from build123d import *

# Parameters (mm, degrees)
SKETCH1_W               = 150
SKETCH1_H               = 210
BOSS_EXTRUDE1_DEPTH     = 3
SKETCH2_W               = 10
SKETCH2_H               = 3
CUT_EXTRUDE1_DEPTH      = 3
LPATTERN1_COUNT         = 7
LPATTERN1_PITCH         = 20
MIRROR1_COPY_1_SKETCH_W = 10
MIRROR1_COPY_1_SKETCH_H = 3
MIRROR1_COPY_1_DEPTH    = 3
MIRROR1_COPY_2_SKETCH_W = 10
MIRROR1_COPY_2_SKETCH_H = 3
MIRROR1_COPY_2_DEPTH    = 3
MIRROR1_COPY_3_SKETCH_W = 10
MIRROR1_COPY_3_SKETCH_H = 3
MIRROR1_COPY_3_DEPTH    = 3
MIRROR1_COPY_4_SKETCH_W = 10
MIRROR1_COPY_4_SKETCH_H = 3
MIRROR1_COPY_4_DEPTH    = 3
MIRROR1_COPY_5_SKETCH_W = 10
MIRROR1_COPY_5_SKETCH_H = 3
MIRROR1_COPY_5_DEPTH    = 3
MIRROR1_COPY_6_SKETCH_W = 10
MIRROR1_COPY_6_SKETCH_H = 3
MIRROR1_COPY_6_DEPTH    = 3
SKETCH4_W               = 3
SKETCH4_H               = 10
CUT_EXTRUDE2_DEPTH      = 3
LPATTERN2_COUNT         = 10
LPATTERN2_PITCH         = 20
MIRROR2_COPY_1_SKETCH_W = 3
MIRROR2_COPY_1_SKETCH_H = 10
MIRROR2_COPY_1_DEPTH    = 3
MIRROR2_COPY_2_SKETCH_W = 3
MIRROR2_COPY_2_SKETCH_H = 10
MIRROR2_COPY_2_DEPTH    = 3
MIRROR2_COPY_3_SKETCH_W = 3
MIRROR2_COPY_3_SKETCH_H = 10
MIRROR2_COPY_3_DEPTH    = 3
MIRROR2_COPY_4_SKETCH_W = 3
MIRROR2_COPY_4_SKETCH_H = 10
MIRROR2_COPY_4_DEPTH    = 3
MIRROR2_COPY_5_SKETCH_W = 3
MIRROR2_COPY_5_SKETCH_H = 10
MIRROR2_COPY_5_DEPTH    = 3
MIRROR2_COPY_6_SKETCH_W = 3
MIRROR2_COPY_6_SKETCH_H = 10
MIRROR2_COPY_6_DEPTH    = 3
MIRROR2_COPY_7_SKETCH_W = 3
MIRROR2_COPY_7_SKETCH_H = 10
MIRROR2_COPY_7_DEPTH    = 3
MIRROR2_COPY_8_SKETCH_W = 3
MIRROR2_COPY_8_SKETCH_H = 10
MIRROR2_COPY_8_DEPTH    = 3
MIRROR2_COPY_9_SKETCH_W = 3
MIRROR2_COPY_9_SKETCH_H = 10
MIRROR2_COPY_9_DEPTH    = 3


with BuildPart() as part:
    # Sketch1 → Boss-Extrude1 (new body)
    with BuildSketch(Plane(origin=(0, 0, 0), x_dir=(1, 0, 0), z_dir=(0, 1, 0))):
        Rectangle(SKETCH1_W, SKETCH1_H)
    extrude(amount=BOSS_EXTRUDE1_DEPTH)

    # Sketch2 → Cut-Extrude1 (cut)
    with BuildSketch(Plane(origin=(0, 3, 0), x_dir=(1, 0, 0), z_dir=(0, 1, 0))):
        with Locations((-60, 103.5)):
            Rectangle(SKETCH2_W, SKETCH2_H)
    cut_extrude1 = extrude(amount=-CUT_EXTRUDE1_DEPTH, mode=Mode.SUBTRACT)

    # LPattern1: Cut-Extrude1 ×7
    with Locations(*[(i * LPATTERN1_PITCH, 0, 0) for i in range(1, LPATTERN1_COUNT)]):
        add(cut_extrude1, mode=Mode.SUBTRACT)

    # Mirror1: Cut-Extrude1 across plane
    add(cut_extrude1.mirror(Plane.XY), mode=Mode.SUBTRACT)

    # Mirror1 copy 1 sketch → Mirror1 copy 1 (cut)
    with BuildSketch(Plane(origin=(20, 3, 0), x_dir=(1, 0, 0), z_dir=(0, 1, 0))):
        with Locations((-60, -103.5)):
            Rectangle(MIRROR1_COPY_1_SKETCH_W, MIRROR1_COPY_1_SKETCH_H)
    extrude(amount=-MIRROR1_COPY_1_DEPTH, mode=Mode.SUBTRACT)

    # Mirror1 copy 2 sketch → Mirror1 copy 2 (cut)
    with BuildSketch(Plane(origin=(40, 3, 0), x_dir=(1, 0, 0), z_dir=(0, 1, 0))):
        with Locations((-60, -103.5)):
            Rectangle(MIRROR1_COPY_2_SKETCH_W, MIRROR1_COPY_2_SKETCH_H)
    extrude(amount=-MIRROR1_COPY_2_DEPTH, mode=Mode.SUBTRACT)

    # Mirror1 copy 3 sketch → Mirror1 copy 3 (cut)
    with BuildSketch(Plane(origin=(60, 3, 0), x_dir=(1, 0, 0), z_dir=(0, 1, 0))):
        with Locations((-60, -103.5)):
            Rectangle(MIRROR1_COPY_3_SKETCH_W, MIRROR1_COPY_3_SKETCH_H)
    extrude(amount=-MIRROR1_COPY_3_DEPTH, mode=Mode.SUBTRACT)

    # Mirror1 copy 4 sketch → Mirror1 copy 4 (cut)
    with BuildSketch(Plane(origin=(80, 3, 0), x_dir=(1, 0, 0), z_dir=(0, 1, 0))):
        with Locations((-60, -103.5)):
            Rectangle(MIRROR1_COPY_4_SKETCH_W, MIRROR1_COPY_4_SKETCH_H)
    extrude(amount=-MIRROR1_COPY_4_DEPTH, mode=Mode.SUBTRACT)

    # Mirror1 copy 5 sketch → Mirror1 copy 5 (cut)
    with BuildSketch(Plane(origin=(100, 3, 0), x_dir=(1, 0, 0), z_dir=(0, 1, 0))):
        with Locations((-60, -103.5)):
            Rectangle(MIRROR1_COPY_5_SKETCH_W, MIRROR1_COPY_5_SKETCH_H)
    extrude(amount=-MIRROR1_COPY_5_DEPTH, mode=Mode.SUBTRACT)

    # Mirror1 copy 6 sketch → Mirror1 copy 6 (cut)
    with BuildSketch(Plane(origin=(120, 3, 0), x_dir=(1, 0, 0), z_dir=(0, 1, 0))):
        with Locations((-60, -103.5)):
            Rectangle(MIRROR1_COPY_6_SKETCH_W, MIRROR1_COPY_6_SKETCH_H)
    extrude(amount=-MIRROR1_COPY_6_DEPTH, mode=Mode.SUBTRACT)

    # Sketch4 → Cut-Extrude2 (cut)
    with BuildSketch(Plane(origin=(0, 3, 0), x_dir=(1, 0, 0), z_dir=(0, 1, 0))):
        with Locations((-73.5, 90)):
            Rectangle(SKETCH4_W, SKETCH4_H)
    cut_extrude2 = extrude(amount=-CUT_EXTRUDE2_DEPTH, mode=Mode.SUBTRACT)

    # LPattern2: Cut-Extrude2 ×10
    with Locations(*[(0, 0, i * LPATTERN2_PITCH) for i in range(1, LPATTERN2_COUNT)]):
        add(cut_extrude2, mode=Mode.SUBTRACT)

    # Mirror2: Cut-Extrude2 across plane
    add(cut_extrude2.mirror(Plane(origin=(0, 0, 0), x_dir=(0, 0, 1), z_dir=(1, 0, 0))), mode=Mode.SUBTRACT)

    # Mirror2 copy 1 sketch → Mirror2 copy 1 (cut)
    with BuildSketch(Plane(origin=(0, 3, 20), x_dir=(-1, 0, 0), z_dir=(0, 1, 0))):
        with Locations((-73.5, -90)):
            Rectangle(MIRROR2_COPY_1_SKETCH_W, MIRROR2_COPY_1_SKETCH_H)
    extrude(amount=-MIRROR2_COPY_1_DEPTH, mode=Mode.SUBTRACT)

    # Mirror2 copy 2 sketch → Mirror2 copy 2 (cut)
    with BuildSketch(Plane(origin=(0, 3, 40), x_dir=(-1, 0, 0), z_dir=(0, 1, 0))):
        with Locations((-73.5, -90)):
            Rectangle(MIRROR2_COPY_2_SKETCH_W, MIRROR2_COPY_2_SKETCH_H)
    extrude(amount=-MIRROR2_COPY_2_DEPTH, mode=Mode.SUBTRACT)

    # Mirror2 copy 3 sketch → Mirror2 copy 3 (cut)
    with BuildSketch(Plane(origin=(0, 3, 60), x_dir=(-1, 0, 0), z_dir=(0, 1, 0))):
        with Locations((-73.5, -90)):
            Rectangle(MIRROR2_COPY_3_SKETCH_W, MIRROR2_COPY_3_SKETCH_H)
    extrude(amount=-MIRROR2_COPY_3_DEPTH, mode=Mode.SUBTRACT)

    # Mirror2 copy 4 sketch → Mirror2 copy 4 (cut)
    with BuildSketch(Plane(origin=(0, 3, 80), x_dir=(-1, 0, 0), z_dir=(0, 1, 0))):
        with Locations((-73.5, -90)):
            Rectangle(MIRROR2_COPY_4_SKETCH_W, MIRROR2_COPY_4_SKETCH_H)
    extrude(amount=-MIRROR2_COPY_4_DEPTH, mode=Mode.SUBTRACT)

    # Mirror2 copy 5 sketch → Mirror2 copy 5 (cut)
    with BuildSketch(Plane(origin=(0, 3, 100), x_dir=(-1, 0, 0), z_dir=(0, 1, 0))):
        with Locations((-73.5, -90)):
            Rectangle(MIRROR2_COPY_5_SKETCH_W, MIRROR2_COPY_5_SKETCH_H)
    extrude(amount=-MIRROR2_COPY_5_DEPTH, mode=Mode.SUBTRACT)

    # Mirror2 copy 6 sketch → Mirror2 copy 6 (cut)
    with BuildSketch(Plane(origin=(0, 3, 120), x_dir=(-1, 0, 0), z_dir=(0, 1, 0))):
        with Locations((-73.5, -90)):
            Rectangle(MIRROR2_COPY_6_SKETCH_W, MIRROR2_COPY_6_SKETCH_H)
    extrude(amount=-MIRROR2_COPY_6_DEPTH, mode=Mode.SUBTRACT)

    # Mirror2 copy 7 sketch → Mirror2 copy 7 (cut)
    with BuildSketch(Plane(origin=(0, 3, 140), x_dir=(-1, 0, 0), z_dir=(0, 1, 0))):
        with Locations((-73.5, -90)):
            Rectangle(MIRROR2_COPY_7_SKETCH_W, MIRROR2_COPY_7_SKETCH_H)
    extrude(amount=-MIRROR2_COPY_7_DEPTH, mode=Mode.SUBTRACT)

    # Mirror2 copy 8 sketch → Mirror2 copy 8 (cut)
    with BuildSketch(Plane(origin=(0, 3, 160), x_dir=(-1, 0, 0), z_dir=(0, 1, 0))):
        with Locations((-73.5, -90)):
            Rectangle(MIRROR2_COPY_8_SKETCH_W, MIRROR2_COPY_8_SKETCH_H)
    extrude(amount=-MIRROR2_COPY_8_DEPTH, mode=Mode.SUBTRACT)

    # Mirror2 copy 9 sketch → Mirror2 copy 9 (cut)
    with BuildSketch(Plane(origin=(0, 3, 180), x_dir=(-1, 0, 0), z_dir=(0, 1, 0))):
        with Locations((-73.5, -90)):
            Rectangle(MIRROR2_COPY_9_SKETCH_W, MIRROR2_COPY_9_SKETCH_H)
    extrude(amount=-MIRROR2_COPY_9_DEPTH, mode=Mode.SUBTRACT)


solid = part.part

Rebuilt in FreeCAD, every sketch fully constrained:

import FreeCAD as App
import Part
import Sketcher
from FreeCAD import Vector
Q = App.Units.Quantity


def add_polygon(sketch, points):
    """Adds a closed chain of lines whose ends are joined by coincident constraints."""
    first, n = sketch.GeometryCount, len(points)
    for a, b in zip(points, points[1:] + points[:1]):
        sketch.addGeometry(Part.LineSegment(App.Vector(*a, 0), App.Vector(*b, 0)), False)
    for i in range(n):
        sketch.addConstraint(Sketcher.Constraint("Coincident", first + i, 2, first + (i + 1) % n, 1))

doc = App.newDocument("Part")
body = doc.addObject("PartDesign::Body", "Body")

# Sketch on XZ plane
sketch1 = body.newObject("Sketcher::SketchObject", "Sketch")
sketch1.AttachmentSupport = (doc.getObject("XZ_Plane"), [""])
sketch1.MapMode = "FlatFace"
add_polygon(sketch1, [(-75, -105), (-75, 105), (75, 105), (75, -105)])  # lines 0-3
sketch1.addConstraint([
    Sketcher.Constraint("Vertical", 0),
    Sketcher.Constraint("Horizontal", 1),
    Sketcher.Constraint("Vertical", 2),
    Sketcher.Constraint("Horizontal", 3),
    Sketcher.Constraint("Symmetric", 0, 2, 2, 2, -1, 1),
    Sketcher.Constraint("DistanceX", 1, 1, 1, 2, Q("150 mm")),
    Sketcher.Constraint("DistanceY", 0, 1, 0, 2, Q("210 mm")),
])
pad1 = body.newObject("PartDesign::Pad", "Pad")
pad1.Profile = sketch1
pad1.Length = 3
pad1.Reversed = True

# Sketch on XZ plane
sketch2 = body.newObject("Sketcher::SketchObject", "Sketch001")
sketch2.AttachmentSupport = (doc.getObject("XZ_Plane"), [""])
sketch2.MapMode = "FlatFace"
sketch2.AttachmentOffset = App.Placement(Vector(0, 0, -3), App.Rotation())
add_polygon(sketch2, [(-65, -105), (-65, -102), (-55, -102), (-55, -105)])  # lines 0-3
sketch2.addConstraint([
    Sketcher.Constraint("Vertical", 0),
    Sketcher.Constraint("Horizontal", 1),
    Sketcher.Constraint("Vertical", 2),
    Sketcher.Constraint("Horizontal", 3),
    Sketcher.Constraint("DistanceX", 1, 1, 1, 2, Q("10 mm")),
    Sketcher.Constraint("DistanceY", 0, 1, 0, 2, Q("3 mm")),
    Sketcher.Constraint("DistanceX", 0, 2, -1, 1, Q("65 mm")),
    Sketcher.Constraint("DistanceY", 0, 2, -1, 1, Q("102 mm")),
])
pocket1 = body.newObject("PartDesign::Pocket", "Pocket")
pocket1.Profile = sketch2
pocket1.Length = 3
pocket1.Reversed = True
doc.recompute()

linearpattern = body.newObject("PartDesign::LinearPattern", "LinearPattern")
linearpattern.Originals = [pocket1]
linearpattern.Direction = (doc.getObject("X_Axis"), [""])
linearpattern.Mode = "offset"
linearpattern.Offset = 20
linearpattern.Occurrences = 7
body.Tip = linearpattern
doc.recompute()

mirrored = body.newObject("PartDesign::Mirrored", "Mirrored")
mirrored.Originals = [pocket1]
mirrored.MirrorPlane = (doc.getObject("XY_Plane"), [""])
body.Tip = mirrored

# Sketch on XZ plane
sketch3 = body.newObject("Sketcher::SketchObject", "Sketch002")
sketch3.AttachmentSupport = (doc.getObject("XZ_Plane"), [""])
sketch3.MapMode = "FlatFace"
sketch3.AttachmentOffset = App.Placement(Vector(0, 0, -3), App.Rotation())
add_polygon(sketch3, [(-45, 102), (-45, 105), (-35, 105), (-35, 102)])  # lines 0-3
sketch3.addConstraint([
    Sketcher.Constraint("Vertical", 0),
    Sketcher.Constraint("Horizontal", 1),
    Sketcher.Constraint("Vertical", 2),
    Sketcher.Constraint("Horizontal", 3),
    Sketcher.Constraint("DistanceX", 1, 1, 1, 2, Q("10 mm")),
    Sketcher.Constraint("DistanceY", 0, 1, 0, 2, Q("3 mm")),
    Sketcher.Constraint("DistanceX", 0, 2, -1, 1, Q("45 mm")),
    Sketcher.Constraint("DistanceY", -1, 1, 0, 2, Q("105 mm")),
])
pocket2 = body.newObject("PartDesign::Pocket", "Pocket001")
pocket2.Profile = sketch3
pocket2.Length = 3
pocket2.Reversed = True

# Sketch on XZ plane
sketch4 = body.newObject("Sketcher::SketchObject", "Sketch003")
sketch4.AttachmentSupport = (doc.getObject("XZ_Plane"), [""])
sketch4.MapMode = "FlatFace"
sketch4.AttachmentOffset = App.Placement(Vector(0, 0, -3), App.Rotation())
add_polygon(sketch4, [(-25, 102), (-25, 105), (-15, 105), (-15, 102)])  # lines 0-3
sketch4.addConstraint([
    Sketcher.Constraint("Vertical", 0),
    Sketcher.Constraint("Horizontal", 1),
    Sketcher.Constraint("Vertical", 2),
    Sketcher.Constraint("Horizontal", 3),
    Sketcher.Constraint("DistanceX", 1, 1, 1, 2, Q("10 mm")),
    Sketcher.Constraint("DistanceY", 0, 1, 0, 2, Q("3 mm")),
    Sketcher.Constraint("DistanceX", 0, 2, -1, 1, Q("25 mm")),
    Sketcher.Constraint("DistanceY", -1, 1, 0, 2, Q("105 mm")),
])
pocket3 = body.newObject("PartDesign::Pocket", "Pocket002")
pocket3.Profile = sketch4
pocket3.Length = 3
pocket3.Reversed = True

# Sketch on XZ plane
sketch5 = body.newObject("Sketcher::SketchObject", "Sketch004")
sketch5.AttachmentSupport = (doc.getObject("XZ_Plane"), [""])
sketch5.MapMode = "FlatFace"
sketch5.AttachmentOffset = App.Placement(Vector(0, 0, -3), App.Rotation())
add_polygon(sketch5, [(-5, 102), (-5, 105), (5, 105), (5, 102)])  # lines 0-3
sketch5.addConstraint([
    Sketcher.Constraint("Vertical", 0),
    Sketcher.Constraint("Horizontal", 1),
    Sketcher.Constraint("Vertical", 2),
    Sketcher.Constraint("Horizontal", 3),
    Sketcher.Constraint("DistanceX", 1, 1, 1, 2, Q("10 mm")),
    Sketcher.Constraint("DistanceY", 0, 1, 0, 2, Q("3 mm")),
    Sketcher.Constraint("DistanceX", 0, 2, -1, 1, Q("5 mm")),
    Sketcher.Constraint("DistanceY", -1, 1, 0, 2, Q("105 mm")),
])
pocket4 = body.newObject("PartDesign::Pocket", "Pocket003")
pocket4.Profile = sketch5
pocket4.Length = 3
pocket4.Reversed = True

# Sketch on XZ plane
sketch6 = body.newObject("Sketcher::SketchObject", "Sketch005")
sketch6.AttachmentSupport = (doc.getObject("XZ_Plane"), [""])
sketch6.MapMode = "FlatFace"
sketch6.AttachmentOffset = App.Placement(Vector(0, 0, -3), App.Rotation())
add_polygon(sketch6, [(15, 102), (15, 105), (25, 105), (25, 102)])  # lines 0-3
sketch6.addConstraint([
    Sketcher.Constraint("Vertical", 0),
    Sketcher.Constraint("Horizontal", 1),
    Sketcher.Constraint("Vertical", 2),
    Sketcher.Constraint("Horizontal", 3),
    Sketcher.Constraint("DistanceX", 1, 1, 1, 2, Q("10 mm")),
    Sketcher.Constraint("DistanceY", 0, 1, 0, 2, Q("3 mm")),
    Sketcher.Constraint("DistanceX", -1, 1, 0, 2, Q("15 mm")),
    Sketcher.Constraint("DistanceY", -1, 1, 0, 2, Q("105 mm")),
])
pocket5 = body.newObject("PartDesign::Pocket", "Pocket004")
pocket5.Profile = sketch6
pocket5.Length = 3
pocket5.Reversed = True

# Sketch on XZ plane
sketch7 = body.newObject("Sketcher::SketchObject", "Sketch006")
sketch7.AttachmentSupport = (doc.getObject("XZ_Plane"), [""])
sketch7.MapMode = "FlatFace"
sketch7.AttachmentOffset = App.Placement(Vector(0, 0, -3), App.Rotation())
add_polygon(sketch7, [(35, 102), (35, 105), (45, 105), (45, 102)])  # lines 0-3
sketch7.addConstraint([
    Sketcher.Constraint("Vertical", 0),
    Sketcher.Constraint("Horizontal", 1),
    Sketcher.Constraint("Vertical", 2),
    Sketcher.Constraint("Horizontal", 3),
    Sketcher.Constraint("DistanceX", 1, 1, 1, 2, Q("10 mm")),
    Sketcher.Constraint("DistanceY", 0, 1, 0, 2, Q("3 mm")),
    Sketcher.Constraint("DistanceX", -1, 1, 0, 2, Q("35 mm")),
    Sketcher.Constraint("DistanceY", -1, 1, 0, 2, Q("105 mm")),
])
pocket6 = body.newObject("PartDesign::Pocket", "Pocket005")
pocket6.Profile = sketch7
pocket6.Length = 3
pocket6.Reversed = True

# Sketch on XZ plane
sketch8 = body.newObject("Sketcher::SketchObject", "Sketch007")
sketch8.AttachmentSupport = (doc.getObject("XZ_Plane"), [""])
sketch8.MapMode = "FlatFace"
sketch8.AttachmentOffset = App.Placement(Vector(0, 0, -3), App.Rotation())
add_polygon(sketch8, [(55, 102), (55, 105), (65, 105), (65, 102)])  # lines 0-3
sketch8.addConstraint([
    Sketcher.Constraint("Vertical", 0),
    Sketcher.Constraint("Horizontal", 1),
    Sketcher.Constraint("Vertical", 2),
    Sketcher.Constraint("Horizontal", 3),
    Sketcher.Constraint("DistanceX", 1, 1, 1, 2, Q("10 mm")),
    Sketcher.Constraint("DistanceY", 0, 1, 0, 2, Q("3 mm")),
    Sketcher.Constraint("DistanceX", -1, 1, 0, 2, Q("55 mm")),
    Sketcher.Constraint("DistanceY", -1, 1, 0, 2, Q("105 mm")),
])
pocket7 = body.newObject("PartDesign::Pocket", "Pocket006")
pocket7.Profile = sketch8
pocket7.Length = 3
pocket7.Reversed = True

# Sketch on XZ plane
sketch9 = body.newObject("Sketcher::SketchObject", "Sketch008")
sketch9.AttachmentSupport = (doc.getObject("XZ_Plane"), [""])
sketch9.MapMode = "FlatFace"
sketch9.AttachmentOffset = App.Placement(Vector(0, 0, -3), App.Rotation())
add_polygon(sketch9, [(-75, -95), (-75, -85), (-72, -85), (-72, -95)])  # lines 0-3
sketch9.addConstraint([
    Sketcher.Constraint("Vertical", 0),
    Sketcher.Constraint("Horizontal", 1),
    Sketcher.Constraint("Vertical", 2),
    Sketcher.Constraint("Horizontal", 3),
    Sketcher.Constraint("DistanceX", 1, 1, 1, 2, Q("3 mm")),
    Sketcher.Constraint("DistanceY", 0, 1, 0, 2, Q("10 mm")),
    Sketcher.Constraint("DistanceX", 0, 2, -1, 1, Q("75 mm")),
    Sketcher.Constraint("DistanceY", 0, 2, -1, 1, Q("85 mm")),
])
pocket8 = body.newObject("PartDesign::Pocket", "Pocket007")
pocket8.Profile = sketch9
pocket8.Length = 3
pocket8.Reversed = True
doc.recompute()

linearpattern2 = body.newObject("PartDesign::LinearPattern", "LinearPattern001")
linearpattern2.Originals = [pocket8]
linearpattern2.Direction = (doc.getObject("Z_Axis"), [""])
linearpattern2.Mode = "offset"
linearpattern2.Offset = 20
linearpattern2.Occurrences = 10
body.Tip = linearpattern2
doc.recompute()

mirrored2 = body.newObject("PartDesign::Mirrored", "Mirrored001")
mirrored2.Originals = [pocket8]
mirrored2.MirrorPlane = (doc.getObject("YZ_Plane"), [""])
body.Tip = mirrored2

# Sketch on XZ plane
sketch10 = body.newObject("Sketcher::SketchObject", "Sketch009")
sketch10.AttachmentSupport = (doc.getObject("XZ_Plane"), [""])
sketch10.MapMode = "FlatFace"
sketch10.AttachmentOffset = App.Placement(Vector(0, 0, -3), App.Rotation())
add_polygon(sketch10, [(75, -65), (75, -75), (72, -75), (72, -65)])  # lines 0-3
sketch10.addConstraint([
    Sketcher.Constraint("Vertical", 0),
    Sketcher.Constraint("Horizontal", 1),
    Sketcher.Constraint("Vertical", 2),
    Sketcher.Constraint("Horizontal", 3),
    Sketcher.Constraint("DistanceX", 1, 2, 1, 1, Q("3 mm")),
    Sketcher.Constraint("DistanceY", 0, 2, 0, 1, Q("10 mm")),
    Sketcher.Constraint("DistanceX", -1, 1, 0, 2, Q("75 mm")),
    Sketcher.Constraint("DistanceY", 0, 2, -1, 1, Q("75 mm")),
])
pocket9 = body.newObject("PartDesign::Pocket", "Pocket008")
pocket9.Profile = sketch10
pocket9.Length = 3
pocket9.Reversed = True

# Sketch on XZ plane
sketch11 = body.newObject("Sketcher::SketchObject", "Sketch010")
sketch11.AttachmentSupport = (doc.getObject("XZ_Plane"), [""])
sketch11.MapMode = "FlatFace"
sketch11.AttachmentOffset = App.Placement(Vector(0, 0, -3), App.Rotation())
add_polygon(sketch11, [(75, -45), (75, -55), (72, -55), (72, -45)])  # lines 0-3
sketch11.addConstraint([
    Sketcher.Constraint("Vertical", 0),
    Sketcher.Constraint("Horizontal", 1),
    Sketcher.Constraint("Vertical", 2),
    Sketcher.Constraint("Horizontal", 3),
    Sketcher.Constraint("DistanceX", 1, 2, 1, 1, Q("3 mm")),
    Sketcher.Constraint("DistanceY", 0, 2, 0, 1, Q("10 mm")),
    Sketcher.Constraint("DistanceX", -1, 1, 0, 2, Q("75 mm")),
    Sketcher.Constraint("DistanceY", 0, 2, -1, 1, Q("55 mm")),
])
pocket10 = body.newObject("PartDesign::Pocket", "Pocket009")
pocket10.Profile = sketch11
pocket10.Length = 3
pocket10.Reversed = True

# Sketch on XZ plane
sketch12 = body.newObject("Sketcher::SketchObject", "Sketch011")
sketch12.AttachmentSupport = (doc.getObject("XZ_Plane"), [""])
sketch12.MapMode = "FlatFace"
sketch12.AttachmentOffset = App.Placement(Vector(0, 0, -3), App.Rotation())
add_polygon(sketch12, [(75, -25), (75, -35), (72, -35), (72, -25)])  # lines 0-3
sketch12.addConstraint([
    Sketcher.Constraint("Vertical", 0),
    Sketcher.Constraint("Horizontal", 1),
    Sketcher.Constraint("Vertical", 2),
    Sketcher.Constraint("Horizontal", 3),
    Sketcher.Constraint("DistanceX", 1, 2, 1, 1, Q("3 mm")),
    Sketcher.Constraint("DistanceY", 0, 2, 0, 1, Q("10 mm")),
    Sketcher.Constraint("DistanceX", -1, 1, 0, 2, Q("75 mm")),
    Sketcher.Constraint("DistanceY", 0, 2, -1, 1, Q("35 mm")),
])
pocket11 = body.newObject("PartDesign::Pocket", "Pocket010")
pocket11.Profile = sketch12
pocket11.Length = 3
pocket11.Reversed = True

# Sketch on XZ plane
sketch13 = body.newObject("Sketcher::SketchObject", "Sketch012")
sketch13.AttachmentSupport = (doc.getObject("XZ_Plane"), [""])
sketch13.MapMode = "FlatFace"
sketch13.AttachmentOffset = App.Placement(Vector(0, 0, -3), App.Rotation())
add_polygon(sketch13, [(75, -5), (75, -15), (72, -15), (72, -5)])  # lines 0-3
sketch13.addConstraint([
    Sketcher.Constraint("Vertical", 0),
    Sketcher.Constraint("Horizontal", 1),
    Sketcher.Constraint("Vertical", 2),
    Sketcher.Constraint("Horizontal", 3),
    Sketcher.Constraint("DistanceX", 1, 2, 1, 1, Q("3 mm")),
    Sketcher.Constraint("DistanceY", 0, 2, 0, 1, Q("10 mm")),
    Sketcher.Constraint("DistanceX", -1, 1, 0, 2, Q("75 mm")),
    Sketcher.Constraint("DistanceY", 0, 2, -1, 1, Q("15 mm")),
])
pocket12 = body.newObject("PartDesign::Pocket", "Pocket011")
pocket12.Profile = sketch13
pocket12.Length = 3
pocket12.Reversed = True

# Sketch on XZ plane
sketch14 = body.newObject("Sketcher::SketchObject", "Sketch013")
sketch14.AttachmentSupport = (doc.getObject("XZ_Plane"), [""])
sketch14.MapMode = "FlatFace"
sketch14.AttachmentOffset = App.Placement(Vector(0, 0, -3), App.Rotation())
add_polygon(sketch14, [(75, 15), (75, 5), (72, 5), (72, 15)])  # lines 0-3
sketch14.addConstraint([
    Sketcher.Constraint("Vertical", 0),
    Sketcher.Constraint("Horizontal", 1),
    Sketcher.Constraint("Vertical", 2),
    Sketcher.Constraint("Horizontal", 3),
    Sketcher.Constraint("DistanceX", 1, 2, 1, 1, Q("3 mm")),
    Sketcher.Constraint("DistanceY", 0, 2, 0, 1, Q("10 mm")),
    Sketcher.Constraint("DistanceX", -1, 1, 0, 2, Q("75 mm")),
    Sketcher.Constraint("DistanceY", -1, 1, 0, 2, Q("5 mm")),
])
pocket13 = body.newObject("PartDesign::Pocket", "Pocket012")
pocket13.Profile = sketch14
pocket13.Length = 3
pocket13.Reversed = True

# Sketch on XZ plane
sketch15 = body.newObject("Sketcher::SketchObject", "Sketch014")
sketch15.AttachmentSupport = (doc.getObject("XZ_Plane"), [""])
sketch15.MapMode = "FlatFace"
sketch15.AttachmentOffset = App.Placement(Vector(0, 0, -3), App.Rotation())
add_polygon(sketch15, [(75, 35), (75, 25), (72, 25), (72, 35)])  # lines 0-3
sketch15.addConstraint([
    Sketcher.Constraint("Vertical", 0),
    Sketcher.Constraint("Horizontal", 1),
    Sketcher.Constraint("Vertical", 2),
    Sketcher.Constraint("Horizontal", 3),
    Sketcher.Constraint("DistanceX", 1, 2, 1, 1, Q("3 mm")),
    Sketcher.Constraint("DistanceY", 0, 2, 0, 1, Q("10 mm")),
    Sketcher.Constraint("DistanceX", -1, 1, 0, 2, Q("75 mm")),
    Sketcher.Constraint("DistanceY", -1, 1, 0, 2, Q("25 mm")),
])
pocket14 = body.newObject("PartDesign::Pocket", "Pocket013")
pocket14.Profile = sketch15
pocket14.Length = 3
pocket14.Reversed = True

# Sketch on XZ plane
sketch16 = body.newObject("Sketcher::SketchObject", "Sketch015")
sketch16.AttachmentSupport = (doc.getObject("XZ_Plane"), [""])
sketch16.MapMode = "FlatFace"
sketch16.AttachmentOffset = App.Placement(Vector(0, 0, -3), App.Rotation())
add_polygon(sketch16, [(75, 55), (75, 45), (72, 45), (72, 55)])  # lines 0-3
sketch16.addConstraint([
    Sketcher.Constraint("Vertical", 0),
    Sketcher.Constraint("Horizontal", 1),
    Sketcher.Constraint("Vertical", 2),
    Sketcher.Constraint("Horizontal", 3),
    Sketcher.Constraint("DistanceX", 1, 2, 1, 1, Q("3 mm")),
    Sketcher.Constraint("DistanceY", 0, 2, 0, 1, Q("10 mm")),
    Sketcher.Constraint("DistanceX", -1, 1, 0, 2, Q("75 mm")),
    Sketcher.Constraint("DistanceY", -1, 1, 0, 2, Q("45 mm")),
])
pocket15 = body.newObject("PartDesign::Pocket", "Pocket014")
pocket15.Profile = sketch16
pocket15.Length = 3
pocket15.Reversed = True

# Sketch on XZ plane
sketch17 = body.newObject("Sketcher::SketchObject", "Sketch016")
sketch17.AttachmentSupport = (doc.getObject("XZ_Plane"), [""])
sketch17.MapMode = "FlatFace"
sketch17.AttachmentOffset = App.Placement(Vector(0, 0, -3), App.Rotation())
add_polygon(sketch17, [(75, 75), (75, 65), (72, 65), (72, 75)])  # lines 0-3
sketch17.addConstraint([
    Sketcher.Constraint("Vertical", 0),
    Sketcher.Constraint("Horizontal", 1),
    Sketcher.Constraint("Vertical", 2),
    Sketcher.Constraint("Horizontal", 3),
    Sketcher.Constraint("DistanceX", 1, 2, 1, 1, Q("3 mm")),
    Sketcher.Constraint("DistanceY", 0, 2, 0, 1, Q("10 mm")),
    Sketcher.Constraint("DistanceX", -1, 1, 0, 2, Q("75 mm")),
    Sketcher.Constraint("DistanceY", -1, 1, 0, 2, Q("65 mm")),
])
pocket16 = body.newObject("PartDesign::Pocket", "Pocket015")
pocket16.Profile = sketch17
pocket16.Length = 3
pocket16.Reversed = True

# Sketch on XZ plane
sketch18 = body.newObject("Sketcher::SketchObject", "Sketch017")
sketch18.AttachmentSupport = (doc.getObject("XZ_Plane"), [""])
sketch18.MapMode = "FlatFace"
sketch18.AttachmentOffset = App.Placement(Vector(0, 0, -3), App.Rotation())
add_polygon(sketch18, [(75, 95), (75, 85), (72, 85), (72, 95)])  # lines 0-3
sketch18.addConstraint([
    Sketcher.Constraint("Vertical", 0),
    Sketcher.Constraint("Horizontal", 1),
    Sketcher.Constraint("Vertical", 2),
    Sketcher.Constraint("Horizontal", 3),
    Sketcher.Constraint("DistanceX", 1, 2, 1, 1, Q("3 mm")),
    Sketcher.Constraint("DistanceY", 0, 2, 0, 1, Q("10 mm")),
    Sketcher.Constraint("DistanceX", -1, 1, 0, 2, Q("75 mm")),
    Sketcher.Constraint("DistanceY", -1, 1, 0, 2, Q("85 mm")),
])
pocket17 = body.newObject("PartDesign::Pocket", "Pocket016")
pocket17.Profile = sketch18
pocket17.Length = 3
pocket17.Reversed = True

doc.recompute()
